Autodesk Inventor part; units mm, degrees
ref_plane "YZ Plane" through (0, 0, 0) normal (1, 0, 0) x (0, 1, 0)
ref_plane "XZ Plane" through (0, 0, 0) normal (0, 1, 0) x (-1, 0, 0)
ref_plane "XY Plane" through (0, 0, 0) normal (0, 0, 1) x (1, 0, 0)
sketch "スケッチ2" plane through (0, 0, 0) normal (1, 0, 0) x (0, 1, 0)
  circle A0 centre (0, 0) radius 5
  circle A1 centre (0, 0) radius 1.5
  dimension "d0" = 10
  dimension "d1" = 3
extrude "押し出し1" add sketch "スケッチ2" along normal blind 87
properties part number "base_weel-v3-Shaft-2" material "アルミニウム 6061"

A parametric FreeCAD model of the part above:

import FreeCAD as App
import Part
import Sketcher

doc = App.newDocument("Part")
body = doc.addObject("PartDesign::Body", "Body")

# Sketch on YZ plane
sketch1 = body.newObject("Sketcher::SketchObject", "Sketch")
sketch1.AttachmentSupport = (doc.getObject("YZ_Plane"), [""])
sketch1.MapMode = "FlatFace"
sketch1.addGeometry([
    Part.Circle(App.Vector(0, 0, 0), App.Vector(0, 0, 1), 5),
    Part.Circle(App.Vector(0, 0, 0), App.Vector(0, 0, 1), 1.5),
], False)
sketch1.addConstraint([
    Sketcher.Constraint("Coincident", 0, 3, -1, 1),
    Sketcher.Constraint("Coincident", 1, 3, -1, 1),
    Sketcher.Constraint("Diameter", 0, 10.0),
    Sketcher.Constraint("Diameter", 1, 3.0),
])
pad1 = body.newObject("PartDesign::Pad", "Pad")
pad1.Profile = sketch1
pad1.Length = 87

doc.recompute()
